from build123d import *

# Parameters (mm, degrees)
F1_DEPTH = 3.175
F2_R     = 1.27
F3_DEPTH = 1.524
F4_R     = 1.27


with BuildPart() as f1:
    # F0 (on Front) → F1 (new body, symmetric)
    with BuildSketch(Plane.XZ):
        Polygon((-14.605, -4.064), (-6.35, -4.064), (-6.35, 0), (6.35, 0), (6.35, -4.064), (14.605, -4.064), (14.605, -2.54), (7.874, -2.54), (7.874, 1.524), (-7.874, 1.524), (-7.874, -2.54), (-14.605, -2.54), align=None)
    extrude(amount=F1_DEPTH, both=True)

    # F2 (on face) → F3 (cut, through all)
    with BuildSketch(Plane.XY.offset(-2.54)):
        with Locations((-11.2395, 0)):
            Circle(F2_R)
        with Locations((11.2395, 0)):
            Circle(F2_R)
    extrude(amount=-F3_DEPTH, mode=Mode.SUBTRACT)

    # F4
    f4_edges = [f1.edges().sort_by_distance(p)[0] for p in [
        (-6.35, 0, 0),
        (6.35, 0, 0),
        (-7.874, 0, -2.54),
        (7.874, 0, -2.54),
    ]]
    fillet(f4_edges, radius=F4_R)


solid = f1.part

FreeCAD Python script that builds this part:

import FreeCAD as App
import Part
import Sketcher
from FreeCAD import Vector
Q = App.Units.Quantity


def edges_at(feature, points):
    """Names of the edges that pass closest to the given points."""
    edges = feature.Shape.Edges
    near = lambda p: min(range(len(edges)), key=lambda i: edges[i].distToShape(Part.Vertex(*p))[0])
    return sorted({f"Edge{near(p) + 1}" for p in points})


def add_polygon(sketch, points):
    """Adds a closed chain of lines whose ends are joined by coincident constraints."""
    first, n = sketch.GeometryCount, len(points)
    for a, b in zip(points, points[1:] + points[:1]):
        sketch.addGeometry(Part.LineSegment(App.Vector(*a, 0), App.Vector(*b, 0)), False)
    for i in range(n):
        sketch.addConstraint(Sketcher.Constraint("Coincident", first + i, 2, first + (i + 1) % n, 1))

doc = App.newDocument("Part")
params = doc.addObject("Spreadsheet::Sheet", "Params")
for row, (alias, value) in enumerate([
    ("sketch1_width", "0.5 in"),
    ("sketch1_width2", "0.62 in"),
    ("sketch1_height", "0.16 in"),
    ("sketch1_height2", "0.06 in"),
    ("sketch1_width3", "0.325 in"),
    ("pad1_length", "0.25 in"),
    ("sketch2_diameter", "0.1 in"),
    ("fillet_radius", "0.05 in"),
], start=1):
    params.set(f"A{row}", alias)
    params.set(f"B{row}", "=" + value)
    params.setAlias(f"B{row}", alias)

body = doc.addObject("PartDesign::Body", "Body")

# Sketch on XZ plane
sketch1 = doc.addObject("Sketcher::SketchObject", "Sketch")
body.addObject(sketch1)
sketch1.AttachmentSupport = (doc.XZ_Plane, [""])
sketch1.MapMode = "FlatFace"
add_polygon(sketch1, [(-14.6, -4.1), (-6.3, -4.1), (-6.3, 0), (6.3, 0), (6.3, -4.1), (14.6, -4.1), (14.6, -2.5), (7.9, -2.5), (7.9, 1.5), (-7.9, 1.5), (-7.9, -2.5), (-14.6, -2.5)])  # lines 0-11
sketch1.addConstraint([
    Sketcher.Constraint("Horizontal", 0),
    Sketcher.Constraint("Vertical", 1),
    Sketcher.Constraint("Horizontal", 2),
    Sketcher.Constraint("Vertical", 3),
    Sketcher.Constraint("Horizontal", 4),
    Sketcher.Constraint("Vertical", 5),
    Sketcher.Constraint("Horizontal", 6),
    Sketcher.Constraint("Vertical", 7),
    Sketcher.Constraint("Horizontal", 8),
    Sketcher.Constraint("Vertical", 9),
    Sketcher.Constraint("Horizontal", 10),
    Sketcher.Constraint("Vertical", 11),
    Sketcher.Constraint("Symmetric", 1, 2, 2, 2, -1, 1),
    Sketcher.Constraint("Symmetric", 6, 2, 9, 2, -2),
    Sketcher.Constraint("Symmetric", 4, 2, 11, 2, -2),
    Sketcher.Constraint("Equal", 3, 7),
    Sketcher.Constraint("DistanceX", 2, 1, 2, 2, Q("0.5 in")),
    Sketcher.Constraint("DistanceX", 8, 2, 8, 1, Q("0.62 in")),
    Sketcher.Constraint("DistanceY", 1, 1, 1, 2, Q("0.16 in")),
    Sketcher.Constraint("DistanceY", 5, 1, 5, 2, Q("0.06 in")),
    Sketcher.Constraint("DistanceX", 0, 1, 0, 2, Q("0.325 in")),
])
sketch1.setExpression("Constraints[28]", "Params.sketch1_width")
sketch1.setExpression("Constraints[29]", "Params.sketch1_width2")
sketch1.setExpression("Constraints[30]", "Params.sketch1_height")
sketch1.setExpression("Constraints[31]", "Params.sketch1_height2")
sketch1.setExpression("Constraints[32]", "Params.sketch1_width3")
pad1 = doc.addObject("PartDesign::Pad", "Pad")
body.addObject(pad1)
pad1.Profile = sketch1
pad1.setExpression("Length", "Params.pad1_length")
pad1.Midplane = True

# Sketch on XY plane
sketch2 = doc.addObject("Sketcher::SketchObject", "Sketch001")
body.addObject(sketch2)
sketch2.AttachmentSupport = (doc.XY_Plane, [""])
sketch2.MapMode = "FlatFace"
sketch2.AttachmentOffset = App.Placement(Vector(0, 0, -0.1 * 25.4), App.Rotation())
sketch2.addGeometry([
    Part.Circle(Vector(-11.2, 0, 0), Vector(0, 0, 1), 1.3),
    Part.Circle(Vector(11.2, 0, 0), Vector(0, 0, 1), 1.3),
], False)
sketch2.addConstraint([
    Sketcher.Constraint("Equal", 0, 1),
    Sketcher.Constraint("Symmetric", 0, 3, 1, 3, -1, 1),
    Sketcher.Constraint("PointOnObject", 0, 3, -1),
    Sketcher.Constraint("Diameter", 0, Q("0.1 in")),
    Sketcher.Constraint("DistanceX", 0, 3, 1, 3, Q("0.885 in")),
])
sketch2.setExpression("Constraints[3]", "Params.sketch2_diameter")
pocket1 = doc.addObject("PartDesign::Pocket", "Pocket")
body.addObject(pocket1)
pocket1.Profile = sketch2
pocket1.Type = "ThroughAll"
doc.recompute()

fillet = doc.addObject("PartDesign::Fillet", "Fillet")
body.addObject(fillet)
fillet.Base = (pocket1, edges_at(pocket1, [
    (-6.35, 0, 0),
    (6.35, 0, 0),
    (-7.874, 0, -2.54),
    (7.874, 0, -2.54),
]))
fillet.setExpression("Radius", "Params.fillet_radius")

doc.recompute()
